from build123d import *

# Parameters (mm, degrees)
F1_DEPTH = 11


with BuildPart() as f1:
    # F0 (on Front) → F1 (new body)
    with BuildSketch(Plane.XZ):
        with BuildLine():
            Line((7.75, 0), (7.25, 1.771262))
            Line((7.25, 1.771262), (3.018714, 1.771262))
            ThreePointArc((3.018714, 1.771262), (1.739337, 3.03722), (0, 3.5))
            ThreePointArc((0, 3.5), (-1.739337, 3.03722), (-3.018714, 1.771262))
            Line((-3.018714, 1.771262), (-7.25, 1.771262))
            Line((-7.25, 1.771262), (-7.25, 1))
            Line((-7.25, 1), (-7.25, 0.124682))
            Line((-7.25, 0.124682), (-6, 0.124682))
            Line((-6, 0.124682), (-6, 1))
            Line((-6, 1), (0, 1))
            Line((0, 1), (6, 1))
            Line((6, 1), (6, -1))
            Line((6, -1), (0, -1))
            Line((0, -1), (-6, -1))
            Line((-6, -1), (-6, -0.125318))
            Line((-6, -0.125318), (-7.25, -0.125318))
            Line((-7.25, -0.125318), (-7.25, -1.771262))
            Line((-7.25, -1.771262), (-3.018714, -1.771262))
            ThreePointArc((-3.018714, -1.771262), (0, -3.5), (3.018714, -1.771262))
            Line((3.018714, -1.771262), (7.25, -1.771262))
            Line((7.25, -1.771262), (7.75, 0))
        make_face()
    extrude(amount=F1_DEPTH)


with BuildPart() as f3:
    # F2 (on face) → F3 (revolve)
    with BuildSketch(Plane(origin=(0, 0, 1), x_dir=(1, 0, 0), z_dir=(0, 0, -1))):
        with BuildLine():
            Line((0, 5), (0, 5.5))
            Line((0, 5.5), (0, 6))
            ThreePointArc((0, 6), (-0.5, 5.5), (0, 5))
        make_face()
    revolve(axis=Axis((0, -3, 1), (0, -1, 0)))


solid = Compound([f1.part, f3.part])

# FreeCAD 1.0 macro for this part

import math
import FreeCAD as App
import Part
import Sketcher
Q = App.Units.Quantity

doc = App.newDocument("Part")
body = doc.addObject("PartDesign::Body", "Body")

# Sketch on XZ plane
sketch1 = doc.addObject("Sketcher::SketchObject", "Sketch")
body.addObject(sketch1)
sketch1.AttachmentSupport = (doc.XZ_Plane, [""])
sketch1.MapMode = "FlatFace"
sketch1.addGeometry([
    Part.LineSegment(App.Vector(7.8, 0, 0), App.Vector(7.2, 1.8, 0)),  # 0
    Part.LineSegment(App.Vector(7.2, 1.8, 0), App.Vector(3, 1.8, 0)),  # 1
    Part.ArcOfCircle(Part.Circle(App.Vector(0, 0, 0), App.Vector(0, 0, 1), 3.5), math.radians(30), math.radians(90)),  # 2
    Part.ArcOfCircle(Part.Circle(App.Vector(0, 0, 0), App.Vector(0, 0, 1), 3.5), math.radians(90), math.radians(150)),  # 3
    Part.LineSegment(App.Vector(-3, 1.8, 0), App.Vector(-7.2, 1.8, 0)),  # 4
    Part.LineSegment(App.Vector(-7.2, 1.8, 0), App.Vector(-7.2, 0.1, 0)),  # 5
    Part.LineSegment(App.Vector(-7.2, 0.1, 0), App.Vector(-6, 0.1, 0)),  # 6
    Part.LineSegment(App.Vector(-6, 0.1, 0), App.Vector(-6, 1, 0)),  # 7
    Part.LineSegment(App.Vector(-6, 1, 0), App.Vector(6, 1, 0)),  # 8
    Part.LineSegment(App.Vector(6, 1, 0), App.Vector(6, -1, 0)),  # 9
    Part.LineSegment(App.Vector(6, -1, 0), App.Vector(-6, -1, 0)),  # 10
    Part.LineSegment(App.Vector(-6, -1, 0), App.Vector(-6, -0.1, 0)),  # 11
    Part.LineSegment(App.Vector(-6, -0.1, 0), App.Vector(-7.2, -0.1, 0)),  # 12
    Part.LineSegment(App.Vector(-7.2, -0.1, 0), App.Vector(-7.2, -1.8, 0)),  # 13
    Part.LineSegment(App.Vector(-7.2, -1.8, 0), App.Vector(-3, -1.8, 0)),  # 14
    Part.ArcOfCircle(Part.Circle(App.Vector(0, 0, 0), App.Vector(0, 0, 1), 3.5), math.radians(-150), math.radians(-30)),  # 15
    Part.LineSegment(App.Vector(3, -1.8, 0), App.Vector(7.2, -1.8, 0)),  # 16
    Part.LineSegment(App.Vector(7.2, -1.8, 0), App.Vector(7.8, 0, 0)),  # 17
], False)
sketch1.addConstraint([
    Sketcher.Constraint("Coincident", 0, 2, 1, 1),
    Sketcher.Constraint("Coincident", 1, 2, 2, 1),
    Sketcher.Constraint("Tangent", 2, 2, 3, 1),
    Sketcher.Constraint("Coincident", 3, 2, 4, 1),
    Sketcher.Constraint("Coincident", 4, 2, 5, 1),
    Sketcher.Constraint("Coincident", 5, 2, 6, 1),
    Sketcher.Constraint("Coincident", 6, 2, 7, 1),
    Sketcher.Constraint("Coincident", 7, 2, 8, 1),
    Sketcher.Constraint("Coincident", 8, 2, 9, 1),
    Sketcher.Constraint("Coincident", 9, 2, 10, 1),
    Sketcher.Constraint("Coincident", 10, 2, 11, 1),
    Sketcher.Constraint("Coincident", 11, 2, 12, 1),
    Sketcher.Constraint("Coincident", 12, 2, 13, 1),
    Sketcher.Constraint("Coincident", 13, 2, 14, 1),
    Sketcher.Constraint("Coincident", 14, 2, 15, 1),
    Sketcher.Constraint("Coincident", 15, 2, 16, 1),
    Sketcher.Constraint("Coincident", 16, 2, 17, 1),
    Sketcher.Constraint("Coincident", 17, 2, 0, 1),
    Sketcher.Constraint("Horizontal", 1),
    Sketcher.Constraint("Horizontal", 4),
    Sketcher.Constraint("Vertical", 5),
    Sketcher.Constraint("Horizontal", 6),
    Sketcher.Constraint("Vertical", 7),
    Sketcher.Constraint("Horizontal", 8),
    Sketcher.Constraint("Vertical", 9),
    Sketcher.Constraint("Horizontal", 10),
    Sketcher.Constraint("Vertical", 11),
    Sketcher.Constraint("Horizontal", 12),
    Sketcher.Constraint("Vertical", 13),
    Sketcher.Constraint("Horizontal", 14),
    Sketcher.Constraint("Horizontal", 16),
    Sketcher.Constraint("Coincident", 2, 3, -1, 1),
    Sketcher.Constraint("Coincident", 15, 3, -1, 1),
    Sketcher.Constraint("Equal", 2, 3),
    Sketcher.Constraint("Symmetric", 7, 2, 9, 2, -1, 1),
    Sketcher.Constraint("Symmetric", 0, 2, 13, 2, -1, 1),
    Sketcher.Constraint("Symmetric", 3, 2, 15, 2, -1, 1),
    Sketcher.Constraint("Symmetric", 0, 2, 4, 2, -2),
    Sketcher.Constraint("PointOnObject", 2, 2, -2),
    Sketcher.Constraint("PointOnObject", 17, 2, -1),
    Sketcher.Constraint("Vertical", 7, 2, 10, 2),
    Sketcher.Constraint("Vertical", 0, 2, 16, 2),
    Sketcher.Constraint("Radius", 15, Q("3.500001 mm")),
    Sketcher.Constraint("DistanceX", 8, 1, 8, 2, Q("12 mm")),
    Sketcher.Constraint("DistanceY", 9, 2, 9, 1, Q("2 mm")),
    Sketcher.Constraint("DistanceX", 6, 1, 6, 2, Q("1.25 mm")),
    Sketcher.Constraint("DistanceX", 0, 2, 17, 2, Q("0.5 mm")),
    Sketcher.Constraint("DistanceY", 11, 2, 6, 2, Q("0.25 mm")),
    Sketcher.Constraint("DistanceY", 5, 2, 5, 1, Q("1.64658 mm")),
    Sketcher.Constraint("DistanceY", 7, 1, 7, 2, Q("0.875318 mm")),
])
pad1 = doc.addObject("PartDesign::Pad", "Pad")
body.addObject(pad1)
pad1.Profile = sketch1
pad1.Length = 11
body2 = doc.addObject("PartDesign::Body", "Body001")

# Sketch on XY plane
sketch2 = doc.addObject("Sketcher::SketchObject", "Sketch001")
body2.addObject(sketch2)
sketch2.AttachmentSupport = (doc.getObject("XY_Plane001"), [""])
sketch2.MapMode = "FlatFace"
sketch2.AttachmentOffset = App.Placement(App.Vector(0, 0, 1), App.Rotation())
sketch2.addGeometry([
    Part.LineSegment(App.Vector(0, -5, 0), App.Vector(0, -6, 0)),
    Part.ArcOfCircle(Part.Circle(App.Vector(0, -5.5, 0), App.Vector(0, 0, 1), 0.5), math.radians(90), math.radians(270)),
], False)
sketch2.addConstraint([
    Sketcher.Constraint("Coincident", 0, 1, 1, 1),
    Sketcher.Constraint("Coincident", 1, 2, 0, 2),
    Sketcher.Constraint("Vertical", 0),
    Sketcher.Constraint("PointOnObject", 1, 3, -2),
    Sketcher.Constraint("PointOnObject", 0, 1, -2),
    Sketcher.Constraint("Radius", 1, Q("0.5 mm")),
    Sketcher.Constraint("DistanceY", 0, 1, -1, 1, Q("5 mm")),
])
revolution = doc.addObject("PartDesign::Revolution", "Revolution")
body2.addObject(revolution)
revolution.Profile = sketch2
revolution.ReferenceAxis = (sketch2, ["V_Axis"])
revolution.Angle = 360

doc.recompute()
